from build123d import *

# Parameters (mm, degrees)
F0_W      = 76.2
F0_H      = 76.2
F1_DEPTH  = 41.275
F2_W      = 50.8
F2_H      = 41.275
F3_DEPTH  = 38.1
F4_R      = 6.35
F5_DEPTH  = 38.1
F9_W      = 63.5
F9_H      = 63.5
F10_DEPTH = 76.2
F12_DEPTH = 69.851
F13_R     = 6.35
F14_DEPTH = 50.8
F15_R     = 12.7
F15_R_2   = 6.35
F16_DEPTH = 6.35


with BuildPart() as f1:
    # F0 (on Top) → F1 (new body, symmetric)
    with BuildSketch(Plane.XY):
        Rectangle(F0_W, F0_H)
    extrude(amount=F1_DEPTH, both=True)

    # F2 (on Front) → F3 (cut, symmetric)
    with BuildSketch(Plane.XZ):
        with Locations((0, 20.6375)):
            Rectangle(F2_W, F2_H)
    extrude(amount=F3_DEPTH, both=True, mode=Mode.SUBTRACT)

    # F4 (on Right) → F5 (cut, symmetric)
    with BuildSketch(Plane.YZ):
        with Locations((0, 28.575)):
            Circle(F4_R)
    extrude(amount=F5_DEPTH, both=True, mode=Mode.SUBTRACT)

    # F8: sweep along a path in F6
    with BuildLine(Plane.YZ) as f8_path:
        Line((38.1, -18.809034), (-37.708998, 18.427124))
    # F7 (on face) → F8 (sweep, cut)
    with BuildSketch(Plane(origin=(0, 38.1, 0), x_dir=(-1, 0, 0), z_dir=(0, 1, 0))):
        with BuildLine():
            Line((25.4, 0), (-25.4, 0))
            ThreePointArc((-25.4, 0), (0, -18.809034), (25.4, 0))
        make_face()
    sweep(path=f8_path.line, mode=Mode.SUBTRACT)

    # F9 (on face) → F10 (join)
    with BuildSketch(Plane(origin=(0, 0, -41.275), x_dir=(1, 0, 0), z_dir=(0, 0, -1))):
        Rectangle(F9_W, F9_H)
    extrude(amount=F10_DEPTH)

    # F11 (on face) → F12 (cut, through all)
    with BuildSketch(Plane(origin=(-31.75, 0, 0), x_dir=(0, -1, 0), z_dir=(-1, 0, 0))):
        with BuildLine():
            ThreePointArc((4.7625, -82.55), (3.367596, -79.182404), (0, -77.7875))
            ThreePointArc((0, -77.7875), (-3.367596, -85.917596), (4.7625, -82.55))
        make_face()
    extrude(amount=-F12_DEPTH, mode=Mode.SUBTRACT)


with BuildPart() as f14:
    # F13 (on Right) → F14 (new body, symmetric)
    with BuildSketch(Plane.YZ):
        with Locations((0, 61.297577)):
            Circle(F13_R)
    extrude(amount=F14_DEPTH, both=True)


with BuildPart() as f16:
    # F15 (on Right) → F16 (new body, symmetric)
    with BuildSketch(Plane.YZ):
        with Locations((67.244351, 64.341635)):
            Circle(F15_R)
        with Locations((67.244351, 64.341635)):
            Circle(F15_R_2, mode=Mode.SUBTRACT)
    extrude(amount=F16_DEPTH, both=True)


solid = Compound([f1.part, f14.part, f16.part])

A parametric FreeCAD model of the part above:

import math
import FreeCAD as App
import Part
import Sketcher
from FreeCAD import Vector
Q = App.Units.Quantity


def add_polygon(sketch, points):
    """Adds a closed chain of lines whose ends are joined by coincident constraints."""
    first, n = sketch.GeometryCount, len(points)
    for a, b in zip(points, points[1:] + points[:1]):
        sketch.addGeometry(Part.LineSegment(App.Vector(*a, 0), App.Vector(*b, 0)), False)
    for i in range(n):
        sketch.addConstraint(Sketcher.Constraint("Coincident", first + i, 2, first + (i + 1) % n, 1))

doc = App.newDocument("Part")
body = doc.addObject("PartDesign::Body", "Body")

sketch1 = body.newObject("Sketcher::SketchObject", "Sketch")
sketch1.AttachmentSupport = (doc.getObject("XY_Plane"), [""])
sketch1.MapMode = "FlatFace"
add_polygon(sketch1, [(-38.1, 38.1), (-38.1, -38.1), (38.1, -38.1), (38.1, 38.1)])
sketch1.addConstraint([
    Sketcher.Constraint("Vertical", 0),
    Sketcher.Constraint("Horizontal", 1),
    Sketcher.Constraint("Vertical", 2),
    Sketcher.Constraint("Horizontal", 3),
    Sketcher.Constraint("Symmetric", 0, 2, 2, 2, -1, 1),
    Sketcher.Constraint("Equal", 3, 0),
    Sketcher.Constraint("DistanceX", 1, 1, 1, 2, Q("3 in")),
])
pad1 = body.newObject("PartDesign::Pad", "Pad")
pad1.Profile = sketch1
pad1.Length = Q("3.25 in")
pad1.Midplane = True

sketch2 = body.newObject("Sketcher::SketchObject", "Sketch001")
sketch2.AttachmentSupport = (doc.getObject("XZ_Plane"), [""])
sketch2.MapMode = "FlatFace"
add_polygon(sketch2, [(-25.4, 41.275), (-25.4, 0), (25.4, 0), (25.4, 41.275)])
sketch2.addConstraint([
    Sketcher.Constraint("Vertical", 0),
    Sketcher.Constraint("Horizontal", 1),
    Sketcher.Constraint("Vertical", 2),
    Sketcher.Constraint("Horizontal", 3),
    Sketcher.Constraint("Symmetric", 0, 2, 1, 2, -1, 1),
    Sketcher.Constraint("DistanceX", 1, 1, 1, 2, Q("2 in")),
    Sketcher.Constraint("DistanceY", 0, 2, 0, 1, Q("1.625 in")),
])
pocket1 = body.newObject("PartDesign::Pocket", "Pocket")
pocket1.Profile = sketch2
pocket1.Length = Q("3 in")
pocket1.Midplane = True

sketch3 = body.newObject("Sketcher::SketchObject", "Sketch002")
sketch3.AttachmentSupport = (doc.getObject("YZ_Plane"), [""])
sketch3.MapMode = "FlatFace"
sketch3.addGeometry(Part.Circle(Vector(0, 28.575, 0), Vector(0, 0, 1), 6.35), False)
sketch3.addConstraint([
    Sketcher.Constraint("PointOnObject", 0, 3, -2),
    Sketcher.Constraint("Diameter", 0, Q("0.5 in")),
    Sketcher.Constraint("DistanceY", -1, 1, 0, 3, Q("1.125 in")),
])
pocket2 = body.newObject("PartDesign::Pocket", "Pocket001")
pocket2.Profile = sketch3
pocket2.Length = Q("3 in")
pocket2.Midplane = True

sketch4 = body.newObject("Sketcher::SketchObject", "Sketch003")
sketch4.AttachmentSupport = (doc.getObject("XZ_Plane"), [""])
sketch4.MapMode = "FlatFace"
sketch4.AttachmentOffset = App.Placement(Vector(0, 0, -1.5 * 25.4), App.Rotation())
sketch4.addGeometry([
    Part.LineSegment(Vector(-25.4, 0, 0), Vector(25.4, 0, 0)),
    Part.ArcOfCircle(Part.Circle(Vector(0, 7.745752, 0), Vector(0, 0, 1), 26.554786), math.radians(-163.040869), math.radians(-16.959131)),
], False)
sketch4.addConstraint([
    Sketcher.Constraint("Coincident", 0, 1, 1, 1),
    Sketcher.Constraint("Coincident", 1, 2, 0, 2),
    Sketcher.Constraint("Horizontal", 0),
    Sketcher.Constraint("Symmetric", 0, 1, 1, 2, -1, 1),
    Sketcher.Constraint("DistanceX", 0, 1, 0, 2, Q("2 in")),
    Sketcher.Constraint("Radius", 1, 26.554786),
])

sketch5 = body.newObject("Sketcher::SketchObject", "Sketch004")
sketch5.Placement = App.Placement(Vector(0, -0.037564, -0.076477), App.Rotation(Vector(0, 0.897570021, -0.440871928), Vector(0.999999999, 0, 0), Vector(0, -0.440871928, -0.897570021), "ZXY"))
sketch5.addGeometry(Part.LineSegment(Vector(42.489793, 0, 0), Vector(-41.970468, 0, 0)), False)
sketch5.addConstraint([
    Sketcher.Constraint("Horizontal", 0),
    Sketcher.Constraint("PointOnObject", 0, 1, -1),
    Sketcher.Constraint("DistanceX", 0, 2, 0, 1, 84.460261),
    Sketcher.Constraint("DistanceX", -1, 1, 0, 1, 42.489793),
])
doc.recompute()

subtractivepipe = body.newObject("PartDesign::SubtractivePipe", "SubtractivePipe")
subtractivepipe.Profile = sketch4
subtractivepipe.Spine = (sketch5, ["Edge1"])

sketch6 = body.newObject("Sketcher::SketchObject", "Sketch005")
sketch6.AttachmentSupport = (doc.getObject("XY_Plane"), [""])
sketch6.MapMode = "FlatFace"
sketch6.AttachmentOffset = App.Placement(Vector(0, 0, -1.625 * 25.4), App.Rotation())
add_polygon(sketch6, [(-31.75, -31.75), (-31.75, 31.75), (31.75, 31.75), (31.75, -31.75)])
sketch6.addConstraint([
    Sketcher.Constraint("Vertical", 0),
    Sketcher.Constraint("Horizontal", 1),
    Sketcher.Constraint("Vertical", 2),
    Sketcher.Constraint("Horizontal", 3),
    Sketcher.Constraint("Symmetric", 0, 2, 2, 2, -1, 1),
    Sketcher.Constraint("Equal", 3, 0),
    Sketcher.Constraint("DistanceX", 1, 1, 1, 2, Q("2.5 in")),
])
pad2 = body.newObject("PartDesign::Pad", "Pad001")
pad2.Profile = sketch6
pad2.Length = Q("3 in")
pad2.Reversed = True

sketch7 = body.newObject("Sketcher::SketchObject", "Sketch006")
sketch7.AttachmentSupport = (doc.getObject("YZ_Plane"), [""])
sketch7.MapMode = "FlatFace"
sketch7.AttachmentOffset = App.Placement(Vector(0, 0, -1.25 * 25.4), App.Rotation())
sketch7.addGeometry([
    Part.ArcOfCircle(Part.Circle(Vector(0, -82.55, 0), Vector(0, 0, 1), 4.7625), math.radians(90.000002), math.radians(179.999998)),
    Part.ArcOfCircle(Part.Circle(Vector(0, -82.55, 0), Vector(0, 0, 1), 4.7625), math.radians(-180), math.radians(90)),
], False)
sketch7.addConstraint([
    Sketcher.Constraint("Tangent", 0, 1, 1, 2),
    Sketcher.Constraint("Coincident", 1, 1, 0, 2),
    Sketcher.Constraint("PointOnObject", 0, 3, -2),
    Sketcher.Constraint("PointOnObject", 0, 1, -2),
    Sketcher.Constraint("Horizontal", 0, 3, 1, 1),
    Sketcher.Constraint("Radius", 0, Q("0.1875 in")),
    Sketcher.Constraint("DistanceY", 0, 3, -1, 1, Q("3.25 in")),
])
pocket3 = body.newObject("PartDesign::Pocket", "Pocket002")
pocket3.Profile = sketch7
pocket3.Type = "ThroughAll"
pocket3.Reversed = True
body2 = doc.addObject("PartDesign::Body", "Body001")

sketch8 = body2.newObject("Sketcher::SketchObject", "Sketch007")
sketch8.AttachmentSupport = (doc.getObject("YZ_Plane001"), [""])
sketch8.MapMode = "FlatFace"
sketch8.addGeometry(Part.Circle(Vector(0, 61.297577, 0), Vector(0, 0, 1), 6.35), False)
sketch8.addConstraint([
    Sketcher.Constraint("PointOnObject", 0, 3, -2),
    Sketcher.Constraint("Diameter", 0, Q("0.5 in")),
    Sketcher.Constraint("DistanceY", -1, 1, 0, 3, 61.297577),
])
pad3 = body2.newObject("PartDesign::Pad", "Pad002")
pad3.Profile = sketch8
pad3.Length = Q("4 in")
pad3.Midplane = True
body3 = doc.addObject("PartDesign::Body", "Body002")

sketch9 = body3.newObject("Sketcher::SketchObject", "Sketch008")
sketch9.AttachmentSupport = (doc.getObject("YZ_Plane002"), [""])
sketch9.MapMode = "FlatFace"
sketch9.addGeometry([
    Part.Circle(Vector(67.244351, 64.341635, 0), Vector(0, 0, 1), 12.7),
    Part.Circle(Vector(67.244351, 64.341635, 0), Vector(0, 0, 1), 6.35),
], False)
sketch9.addConstraint([
    Sketcher.Constraint("Coincident", 1, 3, 0, 3),
    Sketcher.Constraint("Diameter", 0, Q("1 in")),
    Sketcher.Constraint("Diameter", 1, Q("0.5 in")),
    Sketcher.Constraint("DistanceX", -1, 1, 0, 3, 67.244351),
    Sketcher.Constraint("DistanceY", -1, 1, 0, 3, 64.341635),
])
pad4 = body3.newObject("PartDesign::Pad", "Pad003")
pad4.Profile = sketch9
pad4.Length = Q("0.5 in")
pad4.Midplane = True

doc.recompute()
